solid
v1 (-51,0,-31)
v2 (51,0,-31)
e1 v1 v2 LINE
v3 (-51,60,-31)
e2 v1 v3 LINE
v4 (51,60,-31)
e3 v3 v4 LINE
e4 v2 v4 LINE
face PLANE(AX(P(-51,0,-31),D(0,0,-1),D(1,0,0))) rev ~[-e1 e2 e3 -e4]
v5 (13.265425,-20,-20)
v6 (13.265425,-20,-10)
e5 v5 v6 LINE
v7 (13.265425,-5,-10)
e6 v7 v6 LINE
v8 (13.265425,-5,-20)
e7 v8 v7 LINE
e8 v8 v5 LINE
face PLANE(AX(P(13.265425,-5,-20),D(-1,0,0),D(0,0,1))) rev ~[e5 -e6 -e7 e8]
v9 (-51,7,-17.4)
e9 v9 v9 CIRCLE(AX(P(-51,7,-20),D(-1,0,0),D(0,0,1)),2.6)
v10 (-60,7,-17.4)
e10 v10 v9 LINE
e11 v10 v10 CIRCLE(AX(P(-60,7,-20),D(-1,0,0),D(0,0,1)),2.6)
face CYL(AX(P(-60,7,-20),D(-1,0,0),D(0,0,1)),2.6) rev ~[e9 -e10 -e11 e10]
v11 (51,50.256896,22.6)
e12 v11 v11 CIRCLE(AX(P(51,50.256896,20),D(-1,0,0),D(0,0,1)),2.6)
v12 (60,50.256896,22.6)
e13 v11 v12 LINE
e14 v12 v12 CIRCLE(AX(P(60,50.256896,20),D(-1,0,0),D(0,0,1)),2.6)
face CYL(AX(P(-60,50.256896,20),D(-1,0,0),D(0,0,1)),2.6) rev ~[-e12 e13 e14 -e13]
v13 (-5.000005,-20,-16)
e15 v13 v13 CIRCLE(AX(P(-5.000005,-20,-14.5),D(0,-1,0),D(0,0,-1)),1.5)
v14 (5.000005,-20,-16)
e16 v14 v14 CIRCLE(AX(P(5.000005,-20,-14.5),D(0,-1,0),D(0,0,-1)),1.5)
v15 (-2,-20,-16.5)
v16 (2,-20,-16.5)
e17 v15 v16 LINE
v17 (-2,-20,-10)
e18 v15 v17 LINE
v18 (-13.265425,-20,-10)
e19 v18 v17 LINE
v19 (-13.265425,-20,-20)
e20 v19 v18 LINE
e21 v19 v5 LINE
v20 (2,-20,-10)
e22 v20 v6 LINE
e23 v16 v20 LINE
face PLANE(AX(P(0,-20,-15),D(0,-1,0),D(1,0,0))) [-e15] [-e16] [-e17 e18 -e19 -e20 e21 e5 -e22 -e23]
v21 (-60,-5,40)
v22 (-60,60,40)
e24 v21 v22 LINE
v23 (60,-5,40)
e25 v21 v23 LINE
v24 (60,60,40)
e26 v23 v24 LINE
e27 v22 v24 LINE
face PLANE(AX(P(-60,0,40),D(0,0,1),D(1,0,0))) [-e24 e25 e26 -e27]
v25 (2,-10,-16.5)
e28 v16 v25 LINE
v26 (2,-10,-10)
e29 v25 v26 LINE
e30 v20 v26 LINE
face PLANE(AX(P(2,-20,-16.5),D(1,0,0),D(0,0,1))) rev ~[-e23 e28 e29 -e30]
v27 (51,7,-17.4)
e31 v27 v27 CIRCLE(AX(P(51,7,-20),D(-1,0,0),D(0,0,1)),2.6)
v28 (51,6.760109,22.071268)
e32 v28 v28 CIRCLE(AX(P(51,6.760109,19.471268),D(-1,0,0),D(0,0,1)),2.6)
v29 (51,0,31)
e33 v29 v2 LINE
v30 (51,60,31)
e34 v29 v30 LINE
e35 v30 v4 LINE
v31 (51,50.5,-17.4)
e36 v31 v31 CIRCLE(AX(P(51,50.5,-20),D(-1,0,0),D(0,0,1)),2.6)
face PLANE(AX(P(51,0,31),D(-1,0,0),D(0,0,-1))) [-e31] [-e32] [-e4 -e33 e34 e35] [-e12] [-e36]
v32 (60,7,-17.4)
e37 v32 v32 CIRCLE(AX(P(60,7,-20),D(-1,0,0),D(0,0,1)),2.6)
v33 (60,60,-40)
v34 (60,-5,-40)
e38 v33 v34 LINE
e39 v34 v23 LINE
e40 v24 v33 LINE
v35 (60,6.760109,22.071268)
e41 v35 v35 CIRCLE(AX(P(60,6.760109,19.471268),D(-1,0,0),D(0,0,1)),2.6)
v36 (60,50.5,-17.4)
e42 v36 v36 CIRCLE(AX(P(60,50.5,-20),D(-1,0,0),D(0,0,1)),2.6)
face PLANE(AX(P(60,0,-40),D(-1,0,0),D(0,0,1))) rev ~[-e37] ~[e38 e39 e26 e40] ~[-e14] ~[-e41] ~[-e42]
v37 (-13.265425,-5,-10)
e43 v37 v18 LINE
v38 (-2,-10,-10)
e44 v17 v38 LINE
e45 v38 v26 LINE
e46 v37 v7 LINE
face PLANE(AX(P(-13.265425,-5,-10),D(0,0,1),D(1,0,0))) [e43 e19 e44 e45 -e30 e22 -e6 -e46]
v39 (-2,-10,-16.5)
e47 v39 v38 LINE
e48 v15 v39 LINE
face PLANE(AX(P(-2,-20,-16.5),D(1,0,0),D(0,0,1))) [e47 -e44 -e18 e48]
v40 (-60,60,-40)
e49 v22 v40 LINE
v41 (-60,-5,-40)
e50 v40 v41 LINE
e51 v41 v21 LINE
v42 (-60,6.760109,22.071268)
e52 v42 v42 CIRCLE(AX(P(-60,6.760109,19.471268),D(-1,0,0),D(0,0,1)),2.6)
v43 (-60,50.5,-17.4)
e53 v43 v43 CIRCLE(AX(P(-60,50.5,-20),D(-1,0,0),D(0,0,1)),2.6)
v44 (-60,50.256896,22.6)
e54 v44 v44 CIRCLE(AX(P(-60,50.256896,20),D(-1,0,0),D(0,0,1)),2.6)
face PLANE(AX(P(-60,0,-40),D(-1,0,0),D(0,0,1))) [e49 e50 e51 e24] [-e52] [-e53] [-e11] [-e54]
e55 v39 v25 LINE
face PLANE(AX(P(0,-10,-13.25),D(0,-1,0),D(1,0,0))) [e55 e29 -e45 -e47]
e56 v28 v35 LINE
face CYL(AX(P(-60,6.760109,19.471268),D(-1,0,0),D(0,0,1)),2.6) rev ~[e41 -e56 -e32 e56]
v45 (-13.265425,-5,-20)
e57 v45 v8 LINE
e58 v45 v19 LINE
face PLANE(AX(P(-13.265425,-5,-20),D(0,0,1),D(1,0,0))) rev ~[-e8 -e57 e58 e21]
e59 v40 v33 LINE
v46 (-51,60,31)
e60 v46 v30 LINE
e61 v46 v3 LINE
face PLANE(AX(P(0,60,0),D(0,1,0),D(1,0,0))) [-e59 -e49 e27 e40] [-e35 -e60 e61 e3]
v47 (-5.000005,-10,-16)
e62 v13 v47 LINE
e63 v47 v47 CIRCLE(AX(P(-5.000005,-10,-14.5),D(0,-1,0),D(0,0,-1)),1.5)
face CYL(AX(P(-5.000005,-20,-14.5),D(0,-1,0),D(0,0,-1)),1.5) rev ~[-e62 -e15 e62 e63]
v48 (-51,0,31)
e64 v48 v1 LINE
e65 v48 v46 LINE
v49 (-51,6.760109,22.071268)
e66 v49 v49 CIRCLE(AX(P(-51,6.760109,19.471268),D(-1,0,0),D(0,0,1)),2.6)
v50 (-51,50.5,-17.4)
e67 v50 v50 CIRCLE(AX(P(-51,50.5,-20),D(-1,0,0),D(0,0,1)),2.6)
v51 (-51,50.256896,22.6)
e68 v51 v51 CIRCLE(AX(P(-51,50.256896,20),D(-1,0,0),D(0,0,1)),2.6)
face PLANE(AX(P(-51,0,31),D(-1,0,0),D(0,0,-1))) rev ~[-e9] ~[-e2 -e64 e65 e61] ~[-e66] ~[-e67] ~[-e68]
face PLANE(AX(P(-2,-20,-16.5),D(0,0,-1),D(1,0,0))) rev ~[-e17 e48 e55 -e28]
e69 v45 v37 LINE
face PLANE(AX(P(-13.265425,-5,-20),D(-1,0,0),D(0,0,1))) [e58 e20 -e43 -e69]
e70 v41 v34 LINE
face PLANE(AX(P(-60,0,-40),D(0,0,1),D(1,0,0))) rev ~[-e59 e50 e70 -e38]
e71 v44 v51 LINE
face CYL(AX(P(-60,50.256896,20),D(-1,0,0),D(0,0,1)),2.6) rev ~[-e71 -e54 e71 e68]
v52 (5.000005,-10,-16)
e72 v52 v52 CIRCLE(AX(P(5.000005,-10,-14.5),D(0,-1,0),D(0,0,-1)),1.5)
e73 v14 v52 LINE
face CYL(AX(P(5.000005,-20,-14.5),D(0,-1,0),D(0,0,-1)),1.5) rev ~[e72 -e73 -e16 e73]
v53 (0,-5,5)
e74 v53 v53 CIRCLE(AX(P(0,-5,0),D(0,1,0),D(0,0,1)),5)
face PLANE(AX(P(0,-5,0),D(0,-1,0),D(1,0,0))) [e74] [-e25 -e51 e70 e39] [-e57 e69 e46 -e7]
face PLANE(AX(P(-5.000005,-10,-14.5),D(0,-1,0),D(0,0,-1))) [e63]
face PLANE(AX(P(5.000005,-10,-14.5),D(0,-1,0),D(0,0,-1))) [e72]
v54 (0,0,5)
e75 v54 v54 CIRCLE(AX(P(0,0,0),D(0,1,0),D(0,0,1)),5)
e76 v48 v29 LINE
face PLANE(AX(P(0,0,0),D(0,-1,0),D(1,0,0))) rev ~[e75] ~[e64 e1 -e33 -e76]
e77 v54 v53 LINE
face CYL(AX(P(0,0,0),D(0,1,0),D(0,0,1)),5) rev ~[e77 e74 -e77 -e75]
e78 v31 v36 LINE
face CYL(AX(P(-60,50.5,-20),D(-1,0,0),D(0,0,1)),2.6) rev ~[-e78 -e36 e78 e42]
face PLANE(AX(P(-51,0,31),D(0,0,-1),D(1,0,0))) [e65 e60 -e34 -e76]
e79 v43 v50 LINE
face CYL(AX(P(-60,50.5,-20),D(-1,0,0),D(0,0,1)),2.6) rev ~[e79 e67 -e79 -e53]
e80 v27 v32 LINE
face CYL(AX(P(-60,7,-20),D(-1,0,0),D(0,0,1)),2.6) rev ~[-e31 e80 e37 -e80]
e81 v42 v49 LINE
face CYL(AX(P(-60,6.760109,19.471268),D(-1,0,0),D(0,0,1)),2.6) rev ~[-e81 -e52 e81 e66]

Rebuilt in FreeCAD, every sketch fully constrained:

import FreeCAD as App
import Part
import Sketcher
from FreeCAD import Vector


def add_polygon(sketch, points):
    """Adds a closed chain of lines whose ends are joined by coincident constraints."""
    first, n = sketch.GeometryCount, len(points)
    for a, b in zip(points, points[1:] + points[:1]):
        sketch.addGeometry(Part.LineSegment(App.Vector(*a, 0), App.Vector(*b, 0)), False)
    for i in range(n):
        sketch.addConstraint(Sketcher.Constraint("Coincident", first + i, 2, first + (i + 1) % n, 1))

doc = App.newDocument("Part")
body = doc.addObject("PartDesign::Body", "Body")

sketch1 = doc.addObject("Sketcher::SketchObject", "Sketch")
body.addObject(sketch1)
sketch1.AttachmentSupport = (doc.XZ_Plane, [""])
sketch1.MapMode = "FlatFace"
add_polygon(sketch1, [(-60, -40), (-60, 40), (60, 40), (60, -40)])
add_polygon(sketch1, [(51, 31), (-51, 31), (-51, -31), (51, -31)])
sketch1.addConstraint([
    Sketcher.Constraint("Vertical", 0),
    Sketcher.Constraint("Horizontal", 1),
    Sketcher.Constraint("Vertical", 2),
    Sketcher.Constraint("Horizontal", 3),
    Sketcher.Constraint("Horizontal", 4),
    Sketcher.Constraint("Vertical", 5),
    Sketcher.Constraint("Horizontal", 6),
    Sketcher.Constraint("Vertical", 7),
    Sketcher.Constraint("Symmetric", 0, 2, 2, 2, -1, 1),
    Sketcher.Constraint("Symmetric", 4, 2, 6, 2, -1, 1),
    Sketcher.Constraint("DistanceX", 1, 1, 1, 2, 120.0),
    Sketcher.Constraint("DistanceX", 4, 2, 4, 1, 102.0),
    Sketcher.Constraint("DistanceY", 0, 1, 0, 2, 80.0),
    Sketcher.Constraint("DistanceY", 5, 2, 5, 1, 62.0),
])
pad1 = doc.addObject("PartDesign::Pad", "Pad")
body.addObject(pad1)
pad1.Profile = sketch1
pad1.Length = 60
pad1.Reversed = True

sketch2 = doc.addObject("Sketcher::SketchObject", "Sketch001")
body.addObject(sketch2)
sketch2.AttachmentSupport = (doc.XZ_Plane, [""])
sketch2.MapMode = "FlatFace"
add_polygon(sketch2, [(-60, 40), (-60, -40), (60, -40), (60, 40)])
sketch2.addConstraint([
    Sketcher.Constraint("Vertical", 0),
    Sketcher.Constraint("Horizontal", 1),
    Sketcher.Constraint("Vertical", 2),
    Sketcher.Constraint("Horizontal", 3),
    Sketcher.Constraint("Symmetric", 0, 2, 2, 2, -1, 1),
    Sketcher.Constraint("DistanceX", 1, 1, 1, 2, 120.0),
    Sketcher.Constraint("DistanceY", 0, 2, 0, 1, 80.0),
])
pad2 = doc.addObject("PartDesign::Pad", "Pad001")
body.addObject(pad2)
pad2.Profile = sketch2
pad2.Length = 5

sketch3 = doc.addObject("Sketcher::SketchObject", "Sketch002")
body.addObject(sketch3)
sketch3.AttachmentSupport = (doc.YZ_Plane, [""])
sketch3.MapMode = "FlatFace"
sketch3.AttachmentOffset = App.Placement(Vector(0, 0, -60), App.Rotation())
sketch3.addGeometry([
    Part.Circle(Vector(50.5, -20, 0), Vector(0, 0, 1), 2.6),
    Part.Circle(Vector(50.3, 20, 0), Vector(0, 0, 1), 2.6),
    Part.Circle(Vector(7, -20, 0), Vector(0, 0, 1), 2.6),
    Part.Circle(Vector(6.8, 19.5, 0), Vector(0, 0, 1), 2.6),
], False)
sketch3.addConstraint([
    Sketcher.Constraint("Equal", 0, 1),
    Sketcher.Constraint("Equal", 1, 2),
    Sketcher.Constraint("Equal", 2, 3),
    Sketcher.Constraint("Horizontal", 0, 3, 2, 3),
    Sketcher.Constraint("Diameter", 0, 5.2),
    Sketcher.Constraint("DistanceY", 0, 3, -1, 1, 20.0),
    Sketcher.Constraint("DistanceY", -1, 1, 1, 3, 20.0),
    Sketcher.Constraint("DistanceX", -1, 1, 2, 3, 7.0),
    Sketcher.Constraint("DistanceX", -1, 1, 0, 3, 50.5),
    Sketcher.Constraint("DistanceX", -1, 1, 3, 3, 6.760109),
    Sketcher.Constraint("DistanceY", -1, 1, 3, 3, 19.471268),
    Sketcher.Constraint("DistanceX", -1, 1, 1, 3, 50.256896),
])
pocket1 = doc.addObject("PartDesign::Pocket", "Pocket")
body.addObject(pocket1)
pocket1.Profile = sketch3
pocket1.Type = "ThroughAll"
pocket1.Reversed = True

sketch4 = doc.addObject("Sketcher::SketchObject", "Sketch003")
body.addObject(sketch4)
sketch4.AttachmentSupport = (doc.XZ_Plane, [""])
sketch4.MapMode = "FlatFace"
sketch4.addGeometry(Part.Circle(Vector(0, 0, 0), Vector(0, 0, 1), 5), False)
sketch4.addConstraint([
    Sketcher.Constraint("Coincident", 0, 3, -1, 1),
    Sketcher.Constraint("Diameter", 0, 10.0),
])
pocket2 = doc.addObject("PartDesign::Pocket", "Pocket001")
body.addObject(pocket2)
pocket2.Profile = sketch4
pocket2.Type = "ThroughAll"
pocket2.Reversed = True

sketch5 = doc.addObject("Sketcher::SketchObject", "Sketch004")
body.addObject(sketch5)
sketch5.AttachmentSupport = (doc.XZ_Plane, [""])
sketch5.MapMode = "FlatFace"
sketch5.AttachmentOffset = App.Placement(Vector(0, 0, 5), App.Rotation())
add_polygon(sketch5, [(-13, -10), (-13, -20), (13, -20), (13, -10)])
sketch5.addConstraint([
    Sketcher.Constraint("Vertical", 0),
    Sketcher.Constraint("Horizontal", 1),
    Sketcher.Constraint("Vertical", 2),
    Sketcher.Constraint("Horizontal", 3),
    Sketcher.Constraint("DistanceY", 0, 2, 0, 1, 10.0),
    Sketcher.Constraint("DistanceY", 0, 2, -1, 1, 20.0),
    Sketcher.Constraint("DistanceX", 1, 1, 1, 2, 26.53085),
    Sketcher.Constraint("DistanceX", 0, 2, -1, 1, 13.265425),
])
pad3 = doc.addObject("PartDesign::Pad", "Pad002")
body.addObject(pad3)
pad3.Profile = sketch5
pad3.Length = 15

sketch6 = doc.addObject("Sketcher::SketchObject", "Sketch005")
body.addObject(sketch6)
sketch6.AttachmentSupport = (doc.XZ_Plane, [""])
sketch6.MapMode = "FlatFace"
sketch6.AttachmentOffset = App.Placement(Vector(0, 0, 20), App.Rotation())
add_polygon(sketch6, [(-2, -10), (-2, -16.5), (2, -16.5), (2, -10)])
sketch6.addGeometry(Part.Circle(Vector(-5, -14.5, 0), Vector(0, 0, 1), 1.5), False)
sketch6.addGeometry(Part.Circle(Vector(5, -14.5, 0), Vector(0, 0, 1), 1.5), False)
sketch6.addConstraint([
    Sketcher.Constraint("Vertical", 0),
    Sketcher.Constraint("Horizontal", 1),
    Sketcher.Constraint("Vertical", 2),
    Sketcher.Constraint("Horizontal", 3),
    Sketcher.Constraint("Equal", 4, 5),
    Sketcher.Constraint("Symmetric", 4, 3, 5, 3, -2),
    Sketcher.Constraint("Diameter", 4, 3.0),
    Sketcher.Constraint("DistanceX", 1, 1, 1, 2, 4.0),
    Sketcher.Constraint("DistanceY", 0, 2, 0, 1, 6.5),
    Sketcher.Constraint("DistanceX", 0, 2, -1, 1, 2.0),
    Sketcher.Constraint("DistanceY", 2, 2, -1, 1, 10.0),
    Sketcher.Constraint("DistanceY", 0, 2, 4, 3, 2.0),
    Sketcher.Constraint("DistanceX", 4, 3, 5, 3, 10.00001),
])
pocket3 = doc.addObject("PartDesign::Pocket", "Pocket002")
body.addObject(pocket3)
pocket3.Profile = sketch6
pocket3.Length = 10

doc.recompute()
